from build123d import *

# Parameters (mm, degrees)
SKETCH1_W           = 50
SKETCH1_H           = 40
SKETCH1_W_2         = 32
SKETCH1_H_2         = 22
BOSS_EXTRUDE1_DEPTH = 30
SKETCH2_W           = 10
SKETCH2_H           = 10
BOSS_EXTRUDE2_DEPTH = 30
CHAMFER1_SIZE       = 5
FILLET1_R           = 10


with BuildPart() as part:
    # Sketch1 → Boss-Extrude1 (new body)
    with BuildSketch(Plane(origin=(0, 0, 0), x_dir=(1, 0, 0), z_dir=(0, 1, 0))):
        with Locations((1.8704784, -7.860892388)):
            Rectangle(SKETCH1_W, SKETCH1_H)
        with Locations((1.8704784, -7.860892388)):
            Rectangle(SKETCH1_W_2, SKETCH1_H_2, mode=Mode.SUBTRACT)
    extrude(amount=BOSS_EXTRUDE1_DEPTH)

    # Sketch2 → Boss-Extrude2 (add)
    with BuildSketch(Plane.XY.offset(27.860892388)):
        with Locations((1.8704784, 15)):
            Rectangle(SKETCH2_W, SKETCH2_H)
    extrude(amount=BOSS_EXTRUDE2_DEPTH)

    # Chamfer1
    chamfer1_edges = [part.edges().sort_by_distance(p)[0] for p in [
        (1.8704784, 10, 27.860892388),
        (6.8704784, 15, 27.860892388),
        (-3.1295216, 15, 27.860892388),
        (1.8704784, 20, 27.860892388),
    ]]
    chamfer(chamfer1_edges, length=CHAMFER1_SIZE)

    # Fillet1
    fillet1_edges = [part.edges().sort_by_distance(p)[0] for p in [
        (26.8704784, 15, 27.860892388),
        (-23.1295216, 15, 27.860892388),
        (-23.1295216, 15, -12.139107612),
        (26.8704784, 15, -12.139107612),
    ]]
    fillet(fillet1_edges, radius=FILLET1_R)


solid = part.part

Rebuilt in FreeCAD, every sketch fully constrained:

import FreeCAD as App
import Part
import Sketcher
from FreeCAD import Vector


def edges_at(feature, points):
    """Names of the edges that pass closest to the given points."""
    edges = feature.Shape.Edges
    near = lambda p: min(range(len(edges)), key=lambda i: edges[i].distToShape(Part.Vertex(*p))[0])
    return sorted({f"Edge{near(p) + 1}" for p in points})


def add_polygon(sketch, points):
    """Adds a closed chain of lines whose ends are joined by coincident constraints."""
    first, n = sketch.GeometryCount, len(points)
    for a, b in zip(points, points[1:] + points[:1]):
        sketch.addGeometry(Part.LineSegment(App.Vector(*a, 0), App.Vector(*b, 0)), False)
    for i in range(n):
        sketch.addConstraint(Sketcher.Constraint("Coincident", first + i, 2, first + (i + 1) % n, 1))

doc = App.newDocument("Part")
body = doc.addObject("PartDesign::Body", "Body")

# Sketch on XZ plane
sketch1 = body.newObject("Sketcher::SketchObject", "Sketch")
sketch1.AttachmentSupport = (doc.getObject("XZ_Plane"), [""])
sketch1.MapMode = "FlatFace"
add_polygon(sketch1, [(-23, -12), (-23, 28), (27, 28), (27, -12)])  # lines 0-3
add_polygon(sketch1, [(18, 19), (-14, 19), (-14, -3), (18, -3)])  # lines 4-7
sketch1.addConstraint([
    Sketcher.Constraint("Vertical", 0),
    Sketcher.Constraint("Horizontal", 1),
    Sketcher.Constraint("Vertical", 2),
    Sketcher.Constraint("Horizontal", 3),
    Sketcher.Constraint("Horizontal", 4),
    Sketcher.Constraint("Vertical", 5),
    Sketcher.Constraint("Horizontal", 6),
    Sketcher.Constraint("Vertical", 7),
    Sketcher.Constraint("DistanceX", 1, 1, 1, 2, 50.0),
    Sketcher.Constraint("DistanceX", 4, 2, 4, 1, 32.0),
    Sketcher.Constraint("DistanceY", 0, 1, 0, 2, 40.0),
    Sketcher.Constraint("DistanceY", 5, 2, 5, 1, 22.0),
    Sketcher.Constraint("DistanceX", 0, 2, 4, 2, 9.0),
    Sketcher.Constraint("DistanceY", 4, 2, 0, 2, 9.0),
    Sketcher.Constraint("DistanceX", 0, 2, -1, 1, 23.129522),
    Sketcher.Constraint("DistanceY", -1, 1, 0, 2, 27.860892),
])
pad1 = body.newObject("PartDesign::Pad", "Pad")
pad1.Profile = sketch1
pad1.Length = 30
pad1.Reversed = True

# Sketch on XY plane
sketch2 = body.newObject("Sketcher::SketchObject", "Sketch001")
sketch2.AttachmentSupport = (doc.getObject("XY_Plane"), [""])
sketch2.MapMode = "FlatFace"
sketch2.AttachmentOffset = App.Placement(Vector(0, 0, 27.860892), App.Rotation())
add_polygon(sketch2, [(-3, 20), (-3, 10), (7, 10), (7, 20)])  # lines 0-3
sketch2.addConstraint([
    Sketcher.Constraint("Vertical", 0),
    Sketcher.Constraint("Horizontal", 1),
    Sketcher.Constraint("Vertical", 2),
    Sketcher.Constraint("Horizontal", 3),
    Sketcher.Constraint("Equal", 3, 0),
    Sketcher.Constraint("DistanceX", 1, 1, 1, 2, 10.0),
    Sketcher.Constraint("DistanceY", -1, 1, 0, 2, 10.0),
    Sketcher.Constraint("DistanceX", 0, 2, -1, 1, 3.129522),
])
pad2 = body.newObject("PartDesign::Pad", "Pad001")
pad2.Profile = sketch2
pad2.Length = 30
doc.recompute()

chamfer = body.newObject("PartDesign::Chamfer", "Chamfer")
chamfer.Base = (pad2, edges_at(pad2, [
    (1.87, 10, 27.861),
    (6.87, 15, 27.861),
    (-3.13, 15, 27.861),
    (1.87, 20, 27.861),
]))
chamfer.Size = 5
doc.recompute()

fillet = body.newObject("PartDesign::Fillet", "Fillet")
fillet.Base = (chamfer, edges_at(chamfer, [
    (26.87, 15, 27.861),
    (-23.13, 15, 27.861),
    (-23.13, 15, -12.139),
    (26.87, 15, -12.139),
]))
fillet.Radius = 10

doc.recompute()
